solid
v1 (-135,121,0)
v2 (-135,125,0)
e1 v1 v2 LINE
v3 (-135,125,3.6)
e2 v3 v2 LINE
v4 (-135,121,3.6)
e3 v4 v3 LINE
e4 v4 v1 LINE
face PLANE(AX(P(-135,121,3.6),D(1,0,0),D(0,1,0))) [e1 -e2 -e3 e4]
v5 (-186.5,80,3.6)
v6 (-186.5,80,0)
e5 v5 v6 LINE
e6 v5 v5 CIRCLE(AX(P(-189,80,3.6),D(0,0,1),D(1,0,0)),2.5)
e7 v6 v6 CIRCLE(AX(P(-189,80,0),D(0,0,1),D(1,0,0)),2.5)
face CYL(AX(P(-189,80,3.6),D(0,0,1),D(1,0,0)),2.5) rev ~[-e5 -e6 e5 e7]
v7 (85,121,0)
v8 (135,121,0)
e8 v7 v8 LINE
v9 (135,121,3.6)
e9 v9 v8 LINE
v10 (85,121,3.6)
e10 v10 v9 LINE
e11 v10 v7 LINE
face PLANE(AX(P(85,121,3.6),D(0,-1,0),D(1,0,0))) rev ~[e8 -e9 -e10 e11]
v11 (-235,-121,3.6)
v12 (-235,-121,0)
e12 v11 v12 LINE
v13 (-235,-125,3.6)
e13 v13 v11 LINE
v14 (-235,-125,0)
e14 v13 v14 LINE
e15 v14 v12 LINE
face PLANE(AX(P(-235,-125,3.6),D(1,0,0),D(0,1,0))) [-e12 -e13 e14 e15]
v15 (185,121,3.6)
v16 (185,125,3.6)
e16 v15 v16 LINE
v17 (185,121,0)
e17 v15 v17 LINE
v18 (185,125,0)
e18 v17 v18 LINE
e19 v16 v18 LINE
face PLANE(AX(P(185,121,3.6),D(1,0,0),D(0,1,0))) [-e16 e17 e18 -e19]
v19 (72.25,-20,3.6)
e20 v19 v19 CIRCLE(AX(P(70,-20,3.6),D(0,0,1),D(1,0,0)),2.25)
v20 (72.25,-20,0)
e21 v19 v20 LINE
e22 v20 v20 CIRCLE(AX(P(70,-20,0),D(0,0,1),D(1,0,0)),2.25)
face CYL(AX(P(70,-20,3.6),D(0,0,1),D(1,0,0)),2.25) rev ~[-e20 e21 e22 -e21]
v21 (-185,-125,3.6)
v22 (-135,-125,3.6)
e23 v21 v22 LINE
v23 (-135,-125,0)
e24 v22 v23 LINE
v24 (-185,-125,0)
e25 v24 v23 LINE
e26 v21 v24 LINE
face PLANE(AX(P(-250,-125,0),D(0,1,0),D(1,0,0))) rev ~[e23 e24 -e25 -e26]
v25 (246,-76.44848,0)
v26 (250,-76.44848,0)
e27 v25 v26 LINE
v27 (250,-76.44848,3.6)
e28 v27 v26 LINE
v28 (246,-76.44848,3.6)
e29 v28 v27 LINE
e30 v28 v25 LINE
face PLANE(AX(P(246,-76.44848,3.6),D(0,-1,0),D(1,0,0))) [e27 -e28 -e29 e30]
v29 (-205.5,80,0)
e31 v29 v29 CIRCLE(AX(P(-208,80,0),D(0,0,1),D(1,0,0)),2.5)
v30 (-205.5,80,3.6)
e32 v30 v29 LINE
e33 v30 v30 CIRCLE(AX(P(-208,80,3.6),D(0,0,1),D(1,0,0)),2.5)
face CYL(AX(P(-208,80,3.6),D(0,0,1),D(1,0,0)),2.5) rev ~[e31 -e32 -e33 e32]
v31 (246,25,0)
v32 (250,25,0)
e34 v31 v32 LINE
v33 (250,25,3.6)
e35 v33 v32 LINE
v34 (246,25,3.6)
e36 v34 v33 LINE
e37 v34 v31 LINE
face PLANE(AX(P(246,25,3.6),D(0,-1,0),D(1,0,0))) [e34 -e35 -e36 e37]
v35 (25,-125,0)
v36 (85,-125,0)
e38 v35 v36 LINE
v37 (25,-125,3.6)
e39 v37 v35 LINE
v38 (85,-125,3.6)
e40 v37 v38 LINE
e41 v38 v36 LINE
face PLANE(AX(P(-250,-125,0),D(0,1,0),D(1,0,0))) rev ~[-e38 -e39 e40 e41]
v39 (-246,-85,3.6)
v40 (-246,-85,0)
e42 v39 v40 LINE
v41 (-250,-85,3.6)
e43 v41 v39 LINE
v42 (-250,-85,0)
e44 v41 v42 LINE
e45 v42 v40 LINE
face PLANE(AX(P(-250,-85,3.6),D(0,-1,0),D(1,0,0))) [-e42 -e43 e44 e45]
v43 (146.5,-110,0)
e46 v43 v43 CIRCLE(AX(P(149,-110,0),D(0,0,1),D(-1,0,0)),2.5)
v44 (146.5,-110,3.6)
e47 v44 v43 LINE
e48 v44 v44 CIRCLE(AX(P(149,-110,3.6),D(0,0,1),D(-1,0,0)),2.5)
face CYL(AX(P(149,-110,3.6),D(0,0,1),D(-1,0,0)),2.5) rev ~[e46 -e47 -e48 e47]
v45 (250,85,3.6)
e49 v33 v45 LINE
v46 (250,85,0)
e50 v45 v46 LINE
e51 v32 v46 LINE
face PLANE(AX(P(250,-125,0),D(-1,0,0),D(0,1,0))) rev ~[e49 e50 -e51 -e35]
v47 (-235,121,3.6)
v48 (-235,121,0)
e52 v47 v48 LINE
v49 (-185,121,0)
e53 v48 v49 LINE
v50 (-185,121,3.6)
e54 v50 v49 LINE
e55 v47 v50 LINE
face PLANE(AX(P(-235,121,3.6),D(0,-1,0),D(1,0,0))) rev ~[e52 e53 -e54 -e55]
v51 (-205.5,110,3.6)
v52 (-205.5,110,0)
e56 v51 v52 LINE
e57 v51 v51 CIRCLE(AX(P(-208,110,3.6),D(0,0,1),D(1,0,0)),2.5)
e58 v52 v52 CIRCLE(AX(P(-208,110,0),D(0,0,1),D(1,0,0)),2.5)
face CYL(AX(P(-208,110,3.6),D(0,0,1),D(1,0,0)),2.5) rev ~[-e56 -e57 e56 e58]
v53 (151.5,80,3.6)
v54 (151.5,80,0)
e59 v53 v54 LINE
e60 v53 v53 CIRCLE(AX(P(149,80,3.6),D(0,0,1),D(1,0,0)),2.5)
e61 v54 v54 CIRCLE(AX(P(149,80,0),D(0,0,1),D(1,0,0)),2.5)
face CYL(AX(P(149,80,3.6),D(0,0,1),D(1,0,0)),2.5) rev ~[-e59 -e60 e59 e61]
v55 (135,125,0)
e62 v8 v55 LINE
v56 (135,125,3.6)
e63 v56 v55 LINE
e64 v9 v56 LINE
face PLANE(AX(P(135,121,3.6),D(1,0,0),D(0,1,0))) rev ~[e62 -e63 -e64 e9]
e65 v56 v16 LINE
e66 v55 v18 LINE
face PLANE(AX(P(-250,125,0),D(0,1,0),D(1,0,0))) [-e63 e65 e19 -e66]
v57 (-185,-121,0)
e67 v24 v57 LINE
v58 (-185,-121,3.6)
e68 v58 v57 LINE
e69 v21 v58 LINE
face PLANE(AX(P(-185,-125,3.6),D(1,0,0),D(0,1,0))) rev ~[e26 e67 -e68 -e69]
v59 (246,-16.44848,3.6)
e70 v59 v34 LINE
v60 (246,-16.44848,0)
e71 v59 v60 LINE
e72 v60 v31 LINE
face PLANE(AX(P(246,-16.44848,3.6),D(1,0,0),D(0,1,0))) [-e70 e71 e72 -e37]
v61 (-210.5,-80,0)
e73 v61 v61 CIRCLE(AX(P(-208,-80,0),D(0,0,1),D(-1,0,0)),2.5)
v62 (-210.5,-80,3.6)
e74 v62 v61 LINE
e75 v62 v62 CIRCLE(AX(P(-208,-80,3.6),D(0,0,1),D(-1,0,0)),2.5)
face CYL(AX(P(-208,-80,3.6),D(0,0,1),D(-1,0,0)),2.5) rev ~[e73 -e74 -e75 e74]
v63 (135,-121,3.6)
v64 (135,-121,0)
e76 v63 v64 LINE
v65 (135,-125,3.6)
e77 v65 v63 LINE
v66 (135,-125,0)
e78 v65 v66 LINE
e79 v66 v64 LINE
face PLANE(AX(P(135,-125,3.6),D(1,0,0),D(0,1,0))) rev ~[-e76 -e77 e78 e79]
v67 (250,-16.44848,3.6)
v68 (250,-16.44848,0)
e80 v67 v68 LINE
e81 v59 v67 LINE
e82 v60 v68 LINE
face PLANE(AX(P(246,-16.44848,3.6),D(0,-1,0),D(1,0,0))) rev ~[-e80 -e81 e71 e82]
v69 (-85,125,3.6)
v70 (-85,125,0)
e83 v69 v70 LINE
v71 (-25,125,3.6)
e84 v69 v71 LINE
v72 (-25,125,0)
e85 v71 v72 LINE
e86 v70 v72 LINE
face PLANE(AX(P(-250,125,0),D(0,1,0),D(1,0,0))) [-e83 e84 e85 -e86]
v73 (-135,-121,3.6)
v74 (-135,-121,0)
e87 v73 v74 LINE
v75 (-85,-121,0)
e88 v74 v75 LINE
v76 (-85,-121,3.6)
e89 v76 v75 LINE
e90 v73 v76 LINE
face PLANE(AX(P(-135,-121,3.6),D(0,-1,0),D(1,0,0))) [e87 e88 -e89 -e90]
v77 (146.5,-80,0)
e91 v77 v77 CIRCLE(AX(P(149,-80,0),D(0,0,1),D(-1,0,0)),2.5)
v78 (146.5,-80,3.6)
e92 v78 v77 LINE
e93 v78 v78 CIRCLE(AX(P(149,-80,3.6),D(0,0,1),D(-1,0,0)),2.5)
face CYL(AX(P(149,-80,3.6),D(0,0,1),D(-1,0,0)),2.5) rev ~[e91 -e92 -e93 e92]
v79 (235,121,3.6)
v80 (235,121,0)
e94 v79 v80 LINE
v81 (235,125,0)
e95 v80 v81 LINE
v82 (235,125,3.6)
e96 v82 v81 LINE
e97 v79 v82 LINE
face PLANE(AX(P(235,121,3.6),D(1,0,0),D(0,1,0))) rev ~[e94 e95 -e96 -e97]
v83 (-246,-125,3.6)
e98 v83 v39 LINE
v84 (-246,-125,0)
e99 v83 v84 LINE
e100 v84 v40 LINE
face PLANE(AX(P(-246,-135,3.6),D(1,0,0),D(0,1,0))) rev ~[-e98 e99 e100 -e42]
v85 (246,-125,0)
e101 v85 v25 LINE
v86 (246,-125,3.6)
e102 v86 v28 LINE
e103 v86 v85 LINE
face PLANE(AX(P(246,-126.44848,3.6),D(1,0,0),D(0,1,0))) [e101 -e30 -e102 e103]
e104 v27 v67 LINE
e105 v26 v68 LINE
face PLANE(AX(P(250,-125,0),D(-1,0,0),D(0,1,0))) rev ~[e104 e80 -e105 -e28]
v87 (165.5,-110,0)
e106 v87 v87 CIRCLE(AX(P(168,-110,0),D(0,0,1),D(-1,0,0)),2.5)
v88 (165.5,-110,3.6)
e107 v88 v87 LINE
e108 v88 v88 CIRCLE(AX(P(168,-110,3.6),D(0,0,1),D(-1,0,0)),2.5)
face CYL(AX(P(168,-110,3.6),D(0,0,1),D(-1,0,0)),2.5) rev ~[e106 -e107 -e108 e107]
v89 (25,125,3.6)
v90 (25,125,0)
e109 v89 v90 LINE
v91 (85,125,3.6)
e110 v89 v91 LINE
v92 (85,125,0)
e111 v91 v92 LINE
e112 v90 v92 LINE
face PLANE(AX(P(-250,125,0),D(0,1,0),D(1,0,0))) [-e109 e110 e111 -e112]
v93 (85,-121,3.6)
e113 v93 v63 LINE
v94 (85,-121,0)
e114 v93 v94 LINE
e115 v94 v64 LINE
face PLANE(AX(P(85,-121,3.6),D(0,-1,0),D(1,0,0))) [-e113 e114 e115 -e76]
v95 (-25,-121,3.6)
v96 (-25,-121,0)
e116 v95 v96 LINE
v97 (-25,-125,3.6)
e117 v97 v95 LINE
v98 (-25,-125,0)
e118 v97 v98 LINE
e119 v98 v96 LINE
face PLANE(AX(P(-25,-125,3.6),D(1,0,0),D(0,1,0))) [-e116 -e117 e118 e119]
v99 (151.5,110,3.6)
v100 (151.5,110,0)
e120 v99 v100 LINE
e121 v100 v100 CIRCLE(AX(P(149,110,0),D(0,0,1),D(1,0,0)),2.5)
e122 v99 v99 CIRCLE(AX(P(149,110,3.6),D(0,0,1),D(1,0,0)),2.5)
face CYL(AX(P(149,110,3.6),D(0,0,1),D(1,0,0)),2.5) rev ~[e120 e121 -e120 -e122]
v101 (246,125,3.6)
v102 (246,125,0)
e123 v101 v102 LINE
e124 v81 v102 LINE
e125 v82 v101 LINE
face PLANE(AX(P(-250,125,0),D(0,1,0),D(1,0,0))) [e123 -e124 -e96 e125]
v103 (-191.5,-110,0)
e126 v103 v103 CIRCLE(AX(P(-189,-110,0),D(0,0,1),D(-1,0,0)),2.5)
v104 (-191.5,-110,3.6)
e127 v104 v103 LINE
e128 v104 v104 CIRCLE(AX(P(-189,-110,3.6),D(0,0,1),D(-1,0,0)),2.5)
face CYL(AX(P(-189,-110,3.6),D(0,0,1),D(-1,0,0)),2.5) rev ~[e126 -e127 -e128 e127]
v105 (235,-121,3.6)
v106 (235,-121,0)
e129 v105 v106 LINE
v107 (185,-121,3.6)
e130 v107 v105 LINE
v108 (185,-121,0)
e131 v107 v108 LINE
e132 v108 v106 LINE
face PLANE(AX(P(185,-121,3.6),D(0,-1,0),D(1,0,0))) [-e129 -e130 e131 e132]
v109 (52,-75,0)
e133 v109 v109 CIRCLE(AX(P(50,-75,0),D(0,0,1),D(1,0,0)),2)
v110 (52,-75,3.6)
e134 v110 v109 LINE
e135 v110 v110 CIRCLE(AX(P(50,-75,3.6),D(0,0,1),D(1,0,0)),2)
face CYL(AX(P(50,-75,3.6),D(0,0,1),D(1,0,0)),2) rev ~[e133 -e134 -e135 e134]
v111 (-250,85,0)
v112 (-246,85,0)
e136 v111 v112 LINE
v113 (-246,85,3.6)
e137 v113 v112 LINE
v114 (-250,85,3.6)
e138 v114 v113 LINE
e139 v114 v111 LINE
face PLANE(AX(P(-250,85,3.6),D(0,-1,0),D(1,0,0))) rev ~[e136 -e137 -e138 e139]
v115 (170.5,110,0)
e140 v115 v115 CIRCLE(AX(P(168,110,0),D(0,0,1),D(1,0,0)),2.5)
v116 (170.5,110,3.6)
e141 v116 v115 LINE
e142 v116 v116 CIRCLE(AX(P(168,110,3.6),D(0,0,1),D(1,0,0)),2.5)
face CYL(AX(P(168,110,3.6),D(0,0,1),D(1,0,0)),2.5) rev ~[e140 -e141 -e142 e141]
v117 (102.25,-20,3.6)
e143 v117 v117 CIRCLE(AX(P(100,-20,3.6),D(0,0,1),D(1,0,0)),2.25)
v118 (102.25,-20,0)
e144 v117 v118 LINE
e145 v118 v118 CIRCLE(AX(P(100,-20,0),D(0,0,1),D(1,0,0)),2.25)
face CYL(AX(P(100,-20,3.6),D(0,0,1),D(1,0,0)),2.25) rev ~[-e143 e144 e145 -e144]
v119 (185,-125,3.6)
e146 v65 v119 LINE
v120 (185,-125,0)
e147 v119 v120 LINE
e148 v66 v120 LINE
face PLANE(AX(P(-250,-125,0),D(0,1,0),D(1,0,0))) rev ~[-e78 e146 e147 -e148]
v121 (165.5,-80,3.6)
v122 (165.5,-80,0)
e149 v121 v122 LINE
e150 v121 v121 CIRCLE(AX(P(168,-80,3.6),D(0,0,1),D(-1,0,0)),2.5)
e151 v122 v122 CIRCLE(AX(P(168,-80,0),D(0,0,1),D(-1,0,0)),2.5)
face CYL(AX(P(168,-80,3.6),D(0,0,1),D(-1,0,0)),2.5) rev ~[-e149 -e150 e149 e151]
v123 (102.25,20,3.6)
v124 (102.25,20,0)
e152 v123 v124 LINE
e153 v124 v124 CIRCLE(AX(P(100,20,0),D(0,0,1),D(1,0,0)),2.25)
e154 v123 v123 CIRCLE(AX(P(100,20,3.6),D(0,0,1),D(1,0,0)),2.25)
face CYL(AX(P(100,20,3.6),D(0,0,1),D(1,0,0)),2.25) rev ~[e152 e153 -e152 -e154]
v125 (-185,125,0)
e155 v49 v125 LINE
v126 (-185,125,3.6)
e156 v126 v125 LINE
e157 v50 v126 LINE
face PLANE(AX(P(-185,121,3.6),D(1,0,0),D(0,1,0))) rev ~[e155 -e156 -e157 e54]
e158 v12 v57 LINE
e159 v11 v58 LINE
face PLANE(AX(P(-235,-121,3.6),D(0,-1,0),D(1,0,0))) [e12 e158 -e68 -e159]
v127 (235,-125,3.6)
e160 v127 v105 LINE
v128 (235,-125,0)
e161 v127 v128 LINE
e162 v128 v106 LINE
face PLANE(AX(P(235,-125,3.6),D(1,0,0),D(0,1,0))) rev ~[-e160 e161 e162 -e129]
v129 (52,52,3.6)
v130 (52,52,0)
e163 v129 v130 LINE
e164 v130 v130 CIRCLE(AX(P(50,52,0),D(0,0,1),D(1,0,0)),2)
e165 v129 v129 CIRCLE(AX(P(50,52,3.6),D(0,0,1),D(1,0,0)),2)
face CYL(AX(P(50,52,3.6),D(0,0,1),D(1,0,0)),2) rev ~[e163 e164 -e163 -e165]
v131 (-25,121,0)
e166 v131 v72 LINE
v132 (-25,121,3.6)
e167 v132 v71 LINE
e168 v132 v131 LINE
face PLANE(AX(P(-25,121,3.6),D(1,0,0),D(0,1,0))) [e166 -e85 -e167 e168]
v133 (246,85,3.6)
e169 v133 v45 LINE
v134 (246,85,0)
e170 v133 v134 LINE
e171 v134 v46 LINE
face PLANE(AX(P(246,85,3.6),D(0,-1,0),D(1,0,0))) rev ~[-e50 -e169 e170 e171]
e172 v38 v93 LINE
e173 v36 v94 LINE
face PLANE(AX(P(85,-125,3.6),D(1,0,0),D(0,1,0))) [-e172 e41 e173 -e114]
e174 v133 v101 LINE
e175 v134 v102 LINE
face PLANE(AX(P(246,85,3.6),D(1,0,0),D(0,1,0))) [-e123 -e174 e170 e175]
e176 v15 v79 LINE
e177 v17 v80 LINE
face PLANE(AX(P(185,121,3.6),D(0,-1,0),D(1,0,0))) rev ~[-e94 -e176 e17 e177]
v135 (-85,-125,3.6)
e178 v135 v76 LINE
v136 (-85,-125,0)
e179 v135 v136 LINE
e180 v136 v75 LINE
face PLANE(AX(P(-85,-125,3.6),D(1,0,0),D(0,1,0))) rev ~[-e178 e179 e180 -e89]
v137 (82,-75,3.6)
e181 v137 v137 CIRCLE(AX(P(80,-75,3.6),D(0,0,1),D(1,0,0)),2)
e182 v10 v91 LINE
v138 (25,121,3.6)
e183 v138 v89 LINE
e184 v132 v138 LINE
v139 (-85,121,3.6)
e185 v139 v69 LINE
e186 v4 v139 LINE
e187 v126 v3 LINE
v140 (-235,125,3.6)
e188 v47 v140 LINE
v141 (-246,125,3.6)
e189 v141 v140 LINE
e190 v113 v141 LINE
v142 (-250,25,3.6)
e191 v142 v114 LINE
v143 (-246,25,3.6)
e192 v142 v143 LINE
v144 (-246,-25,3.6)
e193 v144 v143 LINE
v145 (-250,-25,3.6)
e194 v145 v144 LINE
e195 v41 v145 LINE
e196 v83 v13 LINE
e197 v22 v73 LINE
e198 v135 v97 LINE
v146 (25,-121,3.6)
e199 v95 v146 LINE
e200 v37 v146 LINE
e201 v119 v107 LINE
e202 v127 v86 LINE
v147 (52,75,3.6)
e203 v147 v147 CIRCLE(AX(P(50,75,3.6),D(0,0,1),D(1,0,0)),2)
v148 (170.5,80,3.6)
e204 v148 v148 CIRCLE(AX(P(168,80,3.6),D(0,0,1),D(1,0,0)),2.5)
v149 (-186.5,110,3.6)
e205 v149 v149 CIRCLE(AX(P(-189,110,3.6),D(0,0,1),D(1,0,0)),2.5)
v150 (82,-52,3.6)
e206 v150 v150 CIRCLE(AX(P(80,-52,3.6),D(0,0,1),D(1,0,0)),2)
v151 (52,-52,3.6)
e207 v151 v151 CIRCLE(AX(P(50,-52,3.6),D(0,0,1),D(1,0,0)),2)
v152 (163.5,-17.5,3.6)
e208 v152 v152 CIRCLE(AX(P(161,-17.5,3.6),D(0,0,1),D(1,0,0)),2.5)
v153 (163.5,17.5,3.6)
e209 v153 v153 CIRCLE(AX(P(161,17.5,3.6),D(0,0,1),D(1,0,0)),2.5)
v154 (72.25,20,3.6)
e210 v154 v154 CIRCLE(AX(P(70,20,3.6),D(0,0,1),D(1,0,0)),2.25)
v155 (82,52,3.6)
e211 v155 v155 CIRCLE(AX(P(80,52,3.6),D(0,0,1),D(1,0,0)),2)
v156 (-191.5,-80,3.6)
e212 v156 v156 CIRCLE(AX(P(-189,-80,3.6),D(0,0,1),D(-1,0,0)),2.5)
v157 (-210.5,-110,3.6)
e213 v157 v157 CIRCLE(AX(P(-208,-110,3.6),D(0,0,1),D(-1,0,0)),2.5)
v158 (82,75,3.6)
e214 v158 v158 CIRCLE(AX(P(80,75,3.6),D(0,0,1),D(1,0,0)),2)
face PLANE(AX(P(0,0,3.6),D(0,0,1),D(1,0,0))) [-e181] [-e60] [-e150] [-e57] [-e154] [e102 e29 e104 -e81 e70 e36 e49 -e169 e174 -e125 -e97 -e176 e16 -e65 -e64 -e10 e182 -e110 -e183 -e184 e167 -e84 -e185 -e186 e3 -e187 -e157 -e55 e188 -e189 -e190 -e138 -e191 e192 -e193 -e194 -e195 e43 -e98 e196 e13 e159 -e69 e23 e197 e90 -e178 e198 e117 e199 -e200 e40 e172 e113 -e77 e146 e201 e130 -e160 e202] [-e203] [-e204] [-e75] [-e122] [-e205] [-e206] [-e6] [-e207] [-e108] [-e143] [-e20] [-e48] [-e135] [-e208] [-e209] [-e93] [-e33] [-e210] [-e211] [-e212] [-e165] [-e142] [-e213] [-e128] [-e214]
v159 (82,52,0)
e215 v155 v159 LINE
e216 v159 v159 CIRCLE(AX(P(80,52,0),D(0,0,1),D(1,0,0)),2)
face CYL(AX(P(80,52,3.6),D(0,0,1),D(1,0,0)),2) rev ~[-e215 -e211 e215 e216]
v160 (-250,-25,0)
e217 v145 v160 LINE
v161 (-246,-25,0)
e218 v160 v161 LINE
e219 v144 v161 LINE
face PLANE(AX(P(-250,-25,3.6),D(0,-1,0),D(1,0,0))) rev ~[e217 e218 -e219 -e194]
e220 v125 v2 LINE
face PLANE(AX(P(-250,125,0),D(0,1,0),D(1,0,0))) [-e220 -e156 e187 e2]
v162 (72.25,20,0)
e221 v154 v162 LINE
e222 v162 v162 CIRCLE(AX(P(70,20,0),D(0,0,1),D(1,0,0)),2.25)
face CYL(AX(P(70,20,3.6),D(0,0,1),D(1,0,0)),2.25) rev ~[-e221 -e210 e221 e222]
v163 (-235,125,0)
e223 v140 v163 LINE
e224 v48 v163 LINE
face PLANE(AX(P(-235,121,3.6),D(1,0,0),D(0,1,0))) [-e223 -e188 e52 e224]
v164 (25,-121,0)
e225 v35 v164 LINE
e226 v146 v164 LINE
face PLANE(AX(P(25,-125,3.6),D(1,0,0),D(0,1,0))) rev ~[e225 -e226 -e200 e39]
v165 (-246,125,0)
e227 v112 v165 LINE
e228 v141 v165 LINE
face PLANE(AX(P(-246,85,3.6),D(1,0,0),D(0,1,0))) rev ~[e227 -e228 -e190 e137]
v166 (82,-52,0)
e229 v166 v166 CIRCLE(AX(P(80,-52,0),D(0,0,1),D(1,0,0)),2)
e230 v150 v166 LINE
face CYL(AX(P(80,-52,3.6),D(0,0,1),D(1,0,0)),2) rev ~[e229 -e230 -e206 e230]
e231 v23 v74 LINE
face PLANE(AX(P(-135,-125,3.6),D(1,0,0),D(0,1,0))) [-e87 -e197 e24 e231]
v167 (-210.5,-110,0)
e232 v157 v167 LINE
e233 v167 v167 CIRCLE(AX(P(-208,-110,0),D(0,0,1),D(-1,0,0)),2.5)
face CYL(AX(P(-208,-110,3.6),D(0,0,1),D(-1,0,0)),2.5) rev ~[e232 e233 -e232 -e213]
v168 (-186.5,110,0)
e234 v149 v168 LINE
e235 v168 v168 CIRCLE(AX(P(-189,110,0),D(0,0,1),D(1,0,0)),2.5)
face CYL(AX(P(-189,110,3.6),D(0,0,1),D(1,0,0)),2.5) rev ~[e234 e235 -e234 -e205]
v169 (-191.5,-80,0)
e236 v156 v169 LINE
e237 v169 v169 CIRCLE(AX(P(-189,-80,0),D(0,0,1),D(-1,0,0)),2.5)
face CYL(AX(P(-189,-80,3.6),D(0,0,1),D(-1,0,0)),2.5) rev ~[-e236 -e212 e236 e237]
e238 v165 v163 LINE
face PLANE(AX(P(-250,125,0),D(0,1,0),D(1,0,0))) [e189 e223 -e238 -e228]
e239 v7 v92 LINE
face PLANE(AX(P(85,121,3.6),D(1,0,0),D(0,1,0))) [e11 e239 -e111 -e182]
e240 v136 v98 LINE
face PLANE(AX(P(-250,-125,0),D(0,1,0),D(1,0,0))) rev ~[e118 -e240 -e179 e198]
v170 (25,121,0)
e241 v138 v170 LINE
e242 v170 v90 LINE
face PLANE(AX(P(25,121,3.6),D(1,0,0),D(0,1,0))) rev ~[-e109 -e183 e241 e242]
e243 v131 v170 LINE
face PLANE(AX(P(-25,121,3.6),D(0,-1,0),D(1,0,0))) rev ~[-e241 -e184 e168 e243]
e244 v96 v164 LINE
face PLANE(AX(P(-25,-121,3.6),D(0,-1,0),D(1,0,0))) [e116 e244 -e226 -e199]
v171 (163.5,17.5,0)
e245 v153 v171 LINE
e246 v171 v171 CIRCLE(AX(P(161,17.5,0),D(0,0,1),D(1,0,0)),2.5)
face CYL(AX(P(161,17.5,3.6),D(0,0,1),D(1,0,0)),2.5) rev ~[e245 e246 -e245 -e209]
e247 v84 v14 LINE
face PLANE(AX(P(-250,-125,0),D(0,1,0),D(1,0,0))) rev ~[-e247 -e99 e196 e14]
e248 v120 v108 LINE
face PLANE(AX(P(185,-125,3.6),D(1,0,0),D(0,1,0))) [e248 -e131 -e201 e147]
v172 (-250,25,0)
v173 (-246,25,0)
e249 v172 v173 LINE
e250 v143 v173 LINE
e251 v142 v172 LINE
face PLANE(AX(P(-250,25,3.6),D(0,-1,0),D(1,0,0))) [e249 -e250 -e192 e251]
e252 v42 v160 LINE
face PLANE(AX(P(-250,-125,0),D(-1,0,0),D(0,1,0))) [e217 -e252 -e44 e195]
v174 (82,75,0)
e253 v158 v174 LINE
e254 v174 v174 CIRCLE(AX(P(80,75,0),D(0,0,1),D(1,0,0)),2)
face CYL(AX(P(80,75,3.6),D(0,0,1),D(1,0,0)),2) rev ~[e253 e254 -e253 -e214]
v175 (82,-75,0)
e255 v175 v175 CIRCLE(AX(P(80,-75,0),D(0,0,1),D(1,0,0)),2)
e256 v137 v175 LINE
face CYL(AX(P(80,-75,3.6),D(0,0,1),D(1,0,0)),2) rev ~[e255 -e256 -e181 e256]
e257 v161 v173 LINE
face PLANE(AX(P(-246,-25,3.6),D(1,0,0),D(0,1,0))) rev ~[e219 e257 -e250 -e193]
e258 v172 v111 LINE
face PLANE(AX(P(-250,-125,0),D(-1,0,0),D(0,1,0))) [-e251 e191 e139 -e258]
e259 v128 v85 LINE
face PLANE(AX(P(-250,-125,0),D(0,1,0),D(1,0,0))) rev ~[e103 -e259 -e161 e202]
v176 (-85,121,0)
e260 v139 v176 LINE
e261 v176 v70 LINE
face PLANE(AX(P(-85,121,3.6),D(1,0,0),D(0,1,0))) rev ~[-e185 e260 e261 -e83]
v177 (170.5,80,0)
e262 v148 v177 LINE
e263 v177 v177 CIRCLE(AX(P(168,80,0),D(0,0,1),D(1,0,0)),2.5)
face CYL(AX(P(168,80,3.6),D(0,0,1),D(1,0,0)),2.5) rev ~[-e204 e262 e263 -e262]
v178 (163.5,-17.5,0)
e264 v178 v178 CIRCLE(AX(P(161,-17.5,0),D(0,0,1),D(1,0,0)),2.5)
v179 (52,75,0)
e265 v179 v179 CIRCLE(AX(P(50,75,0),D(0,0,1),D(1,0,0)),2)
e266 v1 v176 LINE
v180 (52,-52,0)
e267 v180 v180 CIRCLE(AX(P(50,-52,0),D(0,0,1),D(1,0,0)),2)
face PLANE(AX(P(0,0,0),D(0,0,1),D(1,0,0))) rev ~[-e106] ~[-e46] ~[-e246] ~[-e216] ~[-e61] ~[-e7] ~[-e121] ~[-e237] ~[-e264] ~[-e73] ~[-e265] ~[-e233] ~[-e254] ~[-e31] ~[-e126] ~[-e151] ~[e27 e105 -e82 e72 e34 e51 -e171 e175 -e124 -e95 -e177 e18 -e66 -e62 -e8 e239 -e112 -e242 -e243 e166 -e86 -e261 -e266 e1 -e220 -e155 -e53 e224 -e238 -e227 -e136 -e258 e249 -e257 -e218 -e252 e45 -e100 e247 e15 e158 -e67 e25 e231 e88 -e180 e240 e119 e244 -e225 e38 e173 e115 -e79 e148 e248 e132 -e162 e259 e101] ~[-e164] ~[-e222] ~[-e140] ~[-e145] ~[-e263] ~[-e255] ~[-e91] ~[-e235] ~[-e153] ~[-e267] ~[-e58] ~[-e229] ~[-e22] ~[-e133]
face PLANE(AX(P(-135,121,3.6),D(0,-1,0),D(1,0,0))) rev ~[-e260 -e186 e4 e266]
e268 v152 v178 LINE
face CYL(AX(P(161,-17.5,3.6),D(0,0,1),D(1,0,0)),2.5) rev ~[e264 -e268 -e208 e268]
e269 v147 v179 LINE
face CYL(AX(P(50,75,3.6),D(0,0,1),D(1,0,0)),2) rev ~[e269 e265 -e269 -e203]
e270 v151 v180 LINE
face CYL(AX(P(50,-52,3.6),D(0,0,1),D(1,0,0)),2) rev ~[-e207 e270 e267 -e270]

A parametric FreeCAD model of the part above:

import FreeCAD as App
import Part
import Sketcher


def add_polygon(sketch, points):
    """Adds a closed chain of lines whose ends are joined by coincident constraints."""
    first, n = sketch.GeometryCount, len(points)
    for a, b in zip(points, points[1:] + points[:1]):
        sketch.addGeometry(Part.LineSegment(App.Vector(*a, 0), App.Vector(*b, 0)), False)
    for i in range(n):
        sketch.addConstraint(Sketcher.Constraint("Coincident", first + i, 2, first + (i + 1) % n, 1))

doc = App.newDocument("Part")
params = doc.addObject("Spreadsheet::Sheet", "Params")
for row, (alias, value) in enumerate([
    ("sketch1_width", "500 mm"),
    ("sketch1_height", "250 mm"),
    ("pad1_length", "3.6 mm"),
    ("sketch2_width", "50 mm"),
    ("sketch2_height", "4 mm"),
    ("pocket1_length", "3.6 mm"),
    ("sketch3_width", "4 mm"),
    ("sketch3_height", "50 mm"),
    ("pocket2_length", "3.6 mm"),
    ("sketch4_diameter", "4 mm"),
    ("sketch5_diameter", "4 mm"),
    ("pocket4_length", "10 mm"),
    ("sketch6_diameter", "5 mm"),
    ("pocket5_length", "10 mm"),
    ("sketch7_diameter", "4.5 mm"),
    ("sketch8_diameter", "5 mm"),
], start=1):
    params.set(f"A{row}", alias)
    params.set(f"B{row}", "=" + value)
    params.setAlias(f"B{row}", alias)

body = doc.addObject("PartDesign::Body", "Body")

# Sketch on XY plane
sketch1 = doc.addObject("Sketcher::SketchObject", "Sketch")
body.addObject(sketch1)
sketch1.AttachmentSupport = (doc.XY_Plane, [""])
sketch1.MapMode = "FlatFace"
add_polygon(sketch1, [(-250, 125), (-250, -125), (250, -125), (250, 125)])  # lines 0-3
sketch1.addConstraint(Sketcher.Constraint("Vertical", 0))
sketch1.addConstraint(Sketcher.Constraint("Horizontal", 1))
sketch1.addConstraint(Sketcher.Constraint("Vertical", 2))
sketch1.addConstraint(Sketcher.Constraint("Horizontal", 3))
sketch1.addConstraint(Sketcher.Constraint("Symmetric", 0, 2, 2, 2, -1, 1))
sketch1.addConstraint(Sketcher.Constraint("DistanceX", 1, 1, 1, 2, 500.0))
sketch1.addConstraint(Sketcher.Constraint("DistanceY", 0, 2, 0, 1, 250.0))
sketch1.setExpression("Constraints[9]", "Params.sketch1_width")
sketch1.setExpression("Constraints[10]", "Params.sketch1_height")
pad1 = doc.addObject("PartDesign::Pad", "Pad")
body.addObject(pad1)
pad1.Profile = sketch1
pad1.setExpression("Length", "Params.pad1_length")

# Sketch on XY plane
sketch2 = doc.addObject("Sketcher::SketchObject", "Sketch001")
body.addObject(sketch2)
sketch2.AttachmentSupport = (doc.XY_Plane, [""])
sketch2.MapMode = "FlatFace"
sketch2.AttachmentOffset = App.Placement(App.Vector(0, 0, 3.6), App.Rotation())
add_polygon(sketch2, [(-25, 125), (-25, 121), (25, 121), (25, 125)])  # lines 0-3
add_polygon(sketch2, [(-135, 125), (-135, 121), (-85, 121), (-85, 125)])  # lines 4-7
add_polygon(sketch2, [(-235, 125), (-235, 121), (-185, 121), (-185, 125)])  # lines 8-11
add_polygon(sketch2, [(85, 125), (85, 121), (135, 121), (135, 125)])  # lines 12-15
add_polygon(sketch2, [(185, 125), (185, 121), (235, 121), (235, 125)])  # lines 16-19
add_polygon(sketch2, [(185, -121), (185, -125), (235, -125), (235, -121)])  # lines 20-23
add_polygon(sketch2, [(85, -121), (85, -125), (135, -125), (135, -121)])  # lines 24-27
add_polygon(sketch2, [(-235, -121), (-235, -125), (-185, -125), (-185, -121)])  # lines 28-31
add_polygon(sketch2, [(-135, -121), (-135, -125), (-85, -125), (-85, -121)])  # lines 32-35
add_polygon(sketch2, [(-25, -121), (-25, -125), (25, -125), (25, -121)])  # lines 36-39
sketch2.addConstraint(Sketcher.Constraint("Vertical", 0))
sketch2.addConstraint(Sketcher.Constraint("Horizontal", 1))
sketch2.addConstraint(Sketcher.Constraint("Vertical", 2))
sketch2.addConstraint(Sketcher.Constraint("Horizontal", 3))
sketch2.addConstraint(Sketcher.Constraint("Vertical", 4))
sketch2.addConstraint(Sketcher.Constraint("Horizontal", 5))
sketch2.addConstraint(Sketcher.Constraint("Vertical", 6))
sketch2.addConstraint(Sketcher.Constraint("Horizontal", 7))
sketch2.addConstraint(Sketcher.Constraint("Vertical", 8))
sketch2.addConstraint(Sketcher.Constraint("Horizontal", 9))
sketch2.addConstraint(Sketcher.Constraint("Vertical", 10))
sketch2.addConstraint(Sketcher.Constraint("Horizontal", 11))
sketch2.addConstraint(Sketcher.Constraint("Vertical", 12))
sketch2.addConstraint(Sketcher.Constraint("Horizontal", 13))
sketch2.addConstraint(Sketcher.Constraint("Vertical", 14))
sketch2.addConstraint(Sketcher.Constraint("Horizontal", 15))
sketch2.addConstraint(Sketcher.Constraint("Vertical", 16))
sketch2.addConstraint(Sketcher.Constraint("Horizontal", 17))
sketch2.addConstraint(Sketcher.Constraint("Vertical", 18))
sketch2.addConstraint(Sketcher.Constraint("Horizontal", 19))
sketch2.addConstraint(Sketcher.Constraint("Vertical", 20))
sketch2.addConstraint(Sketcher.Constraint("Horizontal", 21))
sketch2.addConstraint(Sketcher.Constraint("Vertical", 22))
sketch2.addConstraint(Sketcher.Constraint("Horizontal", 23))
sketch2.addConstraint(Sketcher.Constraint("Vertical", 24))
sketch2.addConstraint(Sketcher.Constraint("Horizontal", 25))
sketch2.addConstraint(Sketcher.Constraint("Vertical", 26))
sketch2.addConstraint(Sketcher.Constraint("Horizontal", 27))
sketch2.addConstraint(Sketcher.Constraint("Vertical", 28))
sketch2.addConstraint(Sketcher.Constraint("Horizontal", 29))
sketch2.addConstraint(Sketcher.Constraint("Vertical", 30))
sketch2.addConstraint(Sketcher.Constraint("Horizontal", 31))
sketch2.addConstraint(Sketcher.Constraint("Vertical", 32))
sketch2.addConstraint(Sketcher.Constraint("Horizontal", 33))
sketch2.addConstraint(Sketcher.Constraint("Vertical", 34))
sketch2.addConstraint(Sketcher.Constraint("Horizontal", 35))
sketch2.addConstraint(Sketcher.Constraint("Vertical", 36))
sketch2.addConstraint(Sketcher.Constraint("Horizontal", 37))
sketch2.addConstraint(Sketcher.Constraint("Vertical", 38))
sketch2.addConstraint(Sketcher.Constraint("Horizontal", 39))
sketch2.addConstraint(Sketcher.Constraint("Symmetric", 10, 2, 20, 2, -1, 1))
sketch2.addConstraint(Sketcher.Constraint("Symmetric", 8, 2, 22, 2, -1, 1))
sketch2.addConstraint(Sketcher.Constraint("Symmetric", 6, 2, 24, 2, -1, 1))
sketch2.addConstraint(Sketcher.Constraint("Symmetric", 4, 2, 26, 2, -1, 1))
sketch2.addConstraint(Sketcher.Constraint("Symmetric", 18, 2, 28, 2, -1, 1))
sketch2.addConstraint(Sketcher.Constraint("Symmetric", 16, 2, 30, 2, -1, 1))
sketch2.addConstraint(Sketcher.Constraint("Symmetric", 14, 2, 32, 2, -1, 1))
sketch2.addConstraint(Sketcher.Constraint("Symmetric", 12, 2, 34, 2, -1, 1))
sketch2.addConstraint(Sketcher.Constraint("Symmetric", 2, 2, 36, 2, -1, 1))
sketch2.addConstraint(Sketcher.Constraint("Symmetric", 0, 2, 38, 2, -1, 1))
sketch2.addConstraint(Sketcher.Constraint("Symmetric", 5, 2, 12, 2, -2))
sketch2.addConstraint(Sketcher.Constraint("Symmetric", 7, 2, 14, 2, -2))
sketch2.addConstraint(Sketcher.Constraint("Symmetric", 9, 2, 16, 2, -2))
sketch2.addConstraint(Sketcher.Constraint("Symmetric", 11, 2, 18, 2, -2))
sketch2.addConstraint(Sketcher.Constraint("Horizontal", 1, 2, 4, 2))
sketch2.addConstraint(Sketcher.Constraint("Horizontal", 3, 2, 6, 2))
sketch2.addConstraint(Sketcher.Constraint("Horizontal", 5, 2, 8, 2))
sketch2.addConstraint(Sketcher.Constraint("Horizontal", 7, 2, 10, 2))
sketch2.addConstraint(Sketcher.Constraint("Vertical", 3, 2, 36, 2))
sketch2.addConstraint(Sketcher.Constraint("Equal", 3, 5))
sketch2.addConstraint(Sketcher.Constraint("Equal", 7, 9))
sketch2.addConstraint(Sketcher.Constraint("DistanceX", 1, 1, 1, 2, 50.0))
sketch2.addConstraint(Sketcher.Constraint("DistanceY", 0, 2, 0, 1, 4.0))
sketch2.addConstraint(Sketcher.Constraint("DistanceY", -1, 1, 0, 2, 121.0))
sketch2.addConstraint(Sketcher.Constraint("DistanceX", 4, 2, -1, 1, 135.0))
sketch2.addConstraint(Sketcher.Constraint("DistanceX", 8, 2, -1, 1, 235.0))
sketch2.setExpression("Constraints[101]", "Params.sketch2_width")
sketch2.setExpression("Constraints[102]", "Params.sketch2_height")
pocket1 = doc.addObject("PartDesign::Pocket", "Pocket")
body.addObject(pocket1)
pocket1.Profile = sketch2
pocket1.setExpression("Length", "Params.pocket1_length")

# Sketch on XY plane
sketch3 = doc.addObject("Sketcher::SketchObject", "Sketch002")
body.addObject(sketch3)
sketch3.AttachmentSupport = (doc.XY_Plane, [""])
sketch3.MapMode = "FlatFace"
sketch3.AttachmentOffset = App.Placement(App.Vector(0, 0, 3.6), App.Rotation())
add_polygon(sketch3, [(-250, 25), (-250, -25), (-246, -25), (-246, 25)])  # lines 0-3
add_polygon(sketch3, [(-250, 135), (-250, 85), (-246, 85), (-246, 135)])  # lines 4-7
add_polygon(sketch3, [(-250, -85), (-250, -135), (-246, -135), (-246, -85)])  # lines 8-11
add_polygon(sketch3, [(246, 25), (246, -16.44848), (250, -16.44848), (250, 25)])  # lines 12-15
add_polygon(sketch3, [(246, -76.44848), (246, -126.44848), (250, -126.44848), (250, -76.44848)])  # lines 16-19
add_polygon(sketch3, [(246, 135), (246, 85), (250, 85), (250, 135)])  # lines 20-23
sketch3.addConstraint(Sketcher.Constraint("Vertical", 0))
sketch3.addConstraint(Sketcher.Constraint("Horizontal", 1))
sketch3.addConstraint(Sketcher.Constraint("Vertical", 2))
sketch3.addConstraint(Sketcher.Constraint("Horizontal", 3))
sketch3.addConstraint(Sketcher.Constraint("Vertical", 4))
sketch3.addConstraint(Sketcher.Constraint("Horizontal", 5))
sketch3.addConstraint(Sketcher.Constraint("Vertical", 6))
sketch3.addConstraint(Sketcher.Constraint("Horizontal", 7))
sketch3.addConstraint(Sketcher.Constraint("Vertical", 8))
sketch3.addConstraint(Sketcher.Constraint("Horizontal", 9))
sketch3.addConstraint(Sketcher.Constraint("Vertical", 10))
sketch3.addConstraint(Sketcher.Constraint("Horizontal", 11))
sketch3.addConstraint(Sketcher.Constraint("Vertical", 12))
sketch3.addConstraint(Sketcher.Constraint("Horizontal", 13))
sketch3.addConstraint(Sketcher.Constraint("Vertical", 14))
sketch3.addConstraint(Sketcher.Constraint("Horizontal", 15))
sketch3.addConstraint(Sketcher.Constraint("Vertical", 16))
sketch3.addConstraint(Sketcher.Constraint("Horizontal", 17))
sketch3.addConstraint(Sketcher.Constraint("Vertical", 18))
sketch3.addConstraint(Sketcher.Constraint("Horizontal", 19))
sketch3.addConstraint(Sketcher.Constraint("Vertical", 20))
sketch3.addConstraint(Sketcher.Constraint("Horizontal", 21))
sketch3.addConstraint(Sketcher.Constraint("Vertical", 22))
sketch3.addConstraint(Sketcher.Constraint("Horizontal", 23))
sketch3.addConstraint(Sketcher.Constraint("Symmetric", 0, 2, 14, 2, -1, 1))
sketch3.addConstraint(Sketcher.Constraint("Symmetric", 10, 2, 20, 2, -1, 1))
sketch3.addConstraint(Sketcher.Constraint("Symmetric", 8, 2, 22, 2, -1, 1))
sketch3.addConstraint(Sketcher.Constraint("Symmetric", 2, 2, 15, 2, -2))
sketch3.addConstraint(Sketcher.Constraint("Symmetric", 5, 2, 20, 2, -2))
sketch3.addConstraint(Sketcher.Constraint("Symmetric", 7, 2, 22, 2, -2))
sketch3.addConstraint(Sketcher.Constraint("Vertical", 3, 2, 4, 2))
sketch3.addConstraint(Sketcher.Constraint("Vertical", 2, 2, 5, 2))
sketch3.addConstraint(Sketcher.Constraint("Vertical", 15, 2, 16, 2))
sketch3.addConstraint(Sketcher.Constraint("Vertical", 14, 2, 17, 2))
sketch3.addConstraint(Sketcher.Constraint("Equal", 2, 4))
sketch3.addConstraint(Sketcher.Constraint("Equal", 10, 16))
sketch3.addConstraint(Sketcher.Constraint("DistanceX", 1, 1, 1, 2, 4.0))
sketch3.addConstraint(Sketcher.Constraint("DistanceY", 0, 2, 0, 1, 50.0))
sketch3.addConstraint(Sketcher.Constraint("DistanceX", 0, 2, -1, 1, 250.0))
sketch3.addConstraint(Sketcher.Constraint("DistanceY", -1, 1, 4, 2, 85.0))
sketch3.addConstraint(Sketcher.Constraint("DistanceY", 16, 2, 12, 2, 110.0))
sketch3.addConstraint(Sketcher.Constraint("DistanceY", 12, 2, 12, 1, 41.44848))
sketch3.setExpression("Constraints[60]", "Params.sketch3_width")
sketch3.setExpression("Constraints[61]", "Params.sketch3_height")
pocket2 = doc.addObject("PartDesign::Pocket", "Pocket001")
body.addObject(pocket2)
pocket2.Profile = sketch3
pocket2.setExpression("Length", "Params.pocket2_length")

# Sketch on XY plane
sketch4 = doc.addObject("Sketcher::SketchObject", "Sketch003")
body.addObject(sketch4)
sketch4.AttachmentSupport = (doc.XY_Plane, [""])
sketch4.MapMode = "FlatFace"
sketch4.AttachmentOffset = App.Placement(App.Vector(0, 0, 3.6), App.Rotation())
sketch4.addGeometry(Part.Circle(App.Vector(80, 75, 0), App.Vector(0, 0, 1), 2), False)
sketch4.addGeometry(Part.Circle(App.Vector(80, -52, 0), App.Vector(0, 0, 1), 2), False)
sketch4.addGeometry(Part.Circle(App.Vector(80, 52, 0), App.Vector(0, 0, 1), 2), False)
sketch4.addGeometry(Part.Circle(App.Vector(80, -75, 0), App.Vector(0, 0, 1), 2), False)
sketch4.addConstraint(Sketcher.Constraint("Equal", 0, 1))
sketch4.addConstraint(Sketcher.Constraint("Equal", 1, 2))
sketch4.addConstraint(Sketcher.Constraint("Equal", 2, 3))
sketch4.addConstraint(Sketcher.Constraint("Symmetric", 1, 3, 2, 3, -1))
sketch4.addConstraint(Sketcher.Constraint("Symmetric", 0, 3, 3, 3, -1))
sketch4.addConstraint(Sketcher.Constraint("Vertical", 0, 3, 1, 3))
sketch4.addConstraint(Sketcher.Constraint("Diameter", 0, 4.0))
sketch4.addConstraint(Sketcher.Constraint("DistanceX", -1, 1, 0, 3, 80.0))
sketch4.addConstraint(Sketcher.Constraint("DistanceY", -1, 1, 0, 3, 75.0))
sketch4.addConstraint(Sketcher.Constraint("DistanceY", 1, 3, -1, 1, 52.0))
sketch4.setExpression("Constraints[6]", "Params.sketch4_diameter")
pocket3 = doc.addObject("PartDesign::Pocket", "Pocket002")
body.addObject(pocket3)
pocket3.Profile = sketch4
pocket3.Type = "ThroughAll"

# Sketch on XY plane
sketch5 = doc.addObject("Sketcher::SketchObject", "Sketch004")
body.addObject(sketch5)
sketch5.AttachmentSupport = (doc.XY_Plane, [""])
sketch5.MapMode = "FlatFace"
sketch5.AttachmentOffset = App.Placement(App.Vector(0, 0, 3.6), App.Rotation())
sketch5.addGeometry(Part.Circle(App.Vector(50, 75, 0), App.Vector(0, 0, 1), 2), False)
sketch5.addGeometry(Part.Circle(App.Vector(50, 52, 0), App.Vector(0, 0, 1), 2), False)
sketch5.addGeometry(Part.Circle(App.Vector(50, -52, 0), App.Vector(0, 0, 1), 2), False)
sketch5.addGeometry(Part.Circle(App.Vector(50, -75, 0), App.Vector(0, 0, 1), 2), False)
sketch5.addConstraint(Sketcher.Constraint("Equal", 0, 1))
sketch5.addConstraint(Sketcher.Constraint("Equal", 1, 2))
sketch5.addConstraint(Sketcher.Constraint("Equal", 2, 3))
sketch5.addConstraint(Sketcher.Constraint("Symmetric", 1, 3, 2, 3, -1))
sketch5.addConstraint(Sketcher.Constraint("Symmetric", 0, 3, 3, 3, -1))
sketch5.addConstraint(Sketcher.Constraint("Vertical", 0, 3, 1, 3))
sketch5.addConstraint(Sketcher.Constraint("Diameter", 0, 4.0))
sketch5.addConstraint(Sketcher.Constraint("DistanceX", -1, 1, 0, 3, 50.0))
sketch5.addConstraint(Sketcher.Constraint("DistanceY", -1, 1, 0, 3, 75.0))
sketch5.addConstraint(Sketcher.Constraint("DistanceY", -1, 1, 1, 3, 52.0))
sketch5.setExpression("Constraints[6]", "Params.sketch5_diameter")
pocket4 = doc.addObject("PartDesign::Pocket", "Pocket003")
body.addObject(pocket4)
pocket4.Profile = sketch5
pocket4.setExpression("Length", "Params.pocket4_length")

# Sketch on XY plane
sketch6 = doc.addObject("Sketcher::SketchObject", "Sketch005")
body.addObject(sketch6)
sketch6.AttachmentSupport = (doc.XY_Plane, [""])
sketch6.MapMode = "FlatFace"
sketch6.AttachmentOffset = App.Placement(App.Vector(0, 0, 3.6), App.Rotation())
sketch6.addGeometry(Part.Circle(App.Vector(161, -17.5, 0), App.Vector(0, 0, 1), 2.5), False)
sketch6.addGeometry(Part.Circle(App.Vector(161, 17.5, 0), App.Vector(0, 0, 1), 2.5), False)
sketch6.addConstraint(Sketcher.Constraint("Equal", 0, 1))
sketch6.addConstraint(Sketcher.Constraint("Symmetric", 0, 3, 1, 3, -1))
sketch6.addConstraint(Sketcher.Constraint("Diameter", 0, 5.0))
sketch6.addConstraint(Sketcher.Constraint("DistanceX", -1, 1, 0, 3, 161.0))
sketch6.addConstraint(Sketcher.Constraint("DistanceY", 0, 3, 1, 3, 35.0))
sketch6.setExpression("Constraints[2]", "Params.sketch6_diameter")
pocket5 = doc.addObject("PartDesign::Pocket", "Pocket004")
body.addObject(pocket5)
pocket5.Profile = sketch6
pocket5.setExpression("Length", "Params.pocket5_length")

# Sketch on XY plane
sketch7 = doc.addObject("Sketcher::SketchObject", "Sketch006")
body.addObject(sketch7)
sketch7.AttachmentSupport = (doc.XY_Plane, [""])
sketch7.MapMode = "FlatFace"
sketch7.AttachmentOffset = App.Placement(App.Vector(0, 0, 3.6), App.Rotation())
sketch7.addGeometry(Part.Circle(App.Vector(70, 20, 0), App.Vector(0, 0, 1), 2.25), False)
sketch7.addGeometry(Part.Circle(App.Vector(100, 20, 0), App.Vector(0, 0, 1), 2.25), False)
sketch7.addGeometry(Part.Circle(App.Vector(70, -20, 0), App.Vector(0, 0, 1), 2.25), False)
sketch7.addGeometry(Part.Circle(App.Vector(100, -20, 0), App.Vector(0, 0, 1), 2.25), False)
sketch7.addConstraint(Sketcher.Constraint("Equal", 0, 1))
sketch7.addConstraint(Sketcher.Constraint("Equal", 1, 2))
sketch7.addConstraint(Sketcher.Constraint("Equal", 2, 3))
sketch7.addConstraint(Sketcher.Constraint("Symmetric", 0, 3, 2, 3, -1))
sketch7.addConstraint(Sketcher.Constraint("Symmetric", 1, 3, 3, 3, -1))
sketch7.addConstraint(Sketcher.Constraint("Horizontal", 0, 3, 1, 3))
sketch7.addConstraint(Sketcher.Constraint("Diameter", 0, 4.5))
sketch7.addConstraint(Sketcher.Constraint("DistanceX", -1, 1, 0, 3, 70.0))
sketch7.addConstraint(Sketcher.Constraint("DistanceY", -1, 1, 0, 3, 20.0))
sketch7.addConstraint(Sketcher.Constraint("DistanceX", -1, 1, 1, 3, 100.0))
sketch7.setExpression("Constraints[6]", "Params.sketch7_diameter")
pocket6 = doc.addObject("PartDesign::Pocket", "Pocket005")
body.addObject(pocket6)
pocket6.Profile = sketch7
pocket6.Type = "ThroughAll"

# Sketch on XY plane
sketch8 = doc.addObject("Sketcher::SketchObject", "Sketch007")
body.addObject(sketch8)
sketch8.AttachmentSupport = (doc.XY_Plane, [""])
sketch8.MapMode = "FlatFace"
sketch8.AttachmentOffset = App.Placement(App.Vector(0, 0, 3.6), App.Rotation())
sketch8.addGeometry(Part.Circle(App.Vector(-208, 110, 0), App.Vector(0, 0, 1), 2.5), False)
sketch8.addGeometry(Part.Circle(App.Vector(-189, 110, 0), App.Vector(0, 0, 1), 2.5), False)
sketch8.addGeometry(Part.Circle(App.Vector(-208, 80, 0), App.Vector(0, 0, 1), 2.5), False)
sketch8.addGeometry(Part.Circle(App.Vector(-189, 80, 0), App.Vector(0, 0, 1), 2.5), False)
sketch8.addGeometry(Part.Circle(App.Vector(-189, -110, 0), App.Vector(0, 0, 1), 2.5), False)
sketch8.addGeometry(Part.Circle(App.Vector(-189, -80, 0), App.Vector(0, 0, 1), 2.5), False)
sketch8.addGeometry(Part.Circle(App.Vector(-208, -80, 0), App.Vector(0, 0, 1), 2.5), False)
sketch8.addGeometry(Part.Circle(App.Vector(-208, -110, 0), App.Vector(0, 0, 1), 2.5), False)
sketch8.addGeometry(Part.Circle(App.Vector(149, 110, 0), App.Vector(0, 0, 1), 2.5), False)
sketch8.addGeometry(Part.Circle(App.Vector(168, 110, 0), App.Vector(0, 0, 1), 2.5), False)
sketch8.addGeometry(Part.Circle(App.Vector(149, 80, 0), App.Vector(0, 0, 1), 2.5), False)
sketch8.addGeometry(Part.Circle(App.Vector(168, 80, 0), App.Vector(0, 0, 1), 2.5), False)
sketch8.addGeometry(Part.Circle(App.Vector(168, -110, 0), App.Vector(0, 0, 1), 2.5), False)
sketch8.addGeometry(Part.Circle(App.Vector(168, -80, 0), App.Vector(0, 0, 1), 2.5), False)
sketch8.addGeometry(Part.Circle(App.Vector(149, -80, 0), App.Vector(0, 0, 1), 2.5), False)
sketch8.addGeometry(Part.Circle(App.Vector(149, -110, 0), App.Vector(0, 0, 1), 2.5), False)
sketch8.addConstraint(Sketcher.Constraint("Equal", 0, 1))
sketch8.addConstraint(Sketcher.Constraint("Equal", 1, 2))
sketch8.addConstraint(Sketcher.Constraint("Equal", 2, 3))
sketch8.addConstraint(Sketcher.Constraint("Equal", 3, 4))
sketch8.addConstraint(Sketcher.Constraint("Equal", 4, 5))
sketch8.addConstraint(Sketcher.Constraint("Equal", 5, 6))
sketch8.addConstraint(Sketcher.Constraint("Equal", 6, 7))
sketch8.addConstraint(Sketcher.Constraint("Equal", 7, 8))
sketch8.addConstraint(Sketcher.Constraint("Equal", 8, 9))
sketch8.addConstraint(Sketcher.Constraint("Equal", 9, 10))
sketch8.addConstraint(Sketcher.Constraint("Equal", 10, 11))
sketch8.addConstraint(Sketcher.Constraint("Equal", 11, 12))
sketch8.addConstraint(Sketcher.Constraint("Equal", 12, 13))
sketch8.addConstraint(Sketcher.Constraint("Equal", 13, 14))
sketch8.addConstraint(Sketcher.Constraint("Equal", 14, 15))
sketch8.addConstraint(Sketcher.Constraint("Symmetric", 1, 3, 4, 3, -1))
sketch8.addConstraint(Sketcher.Constraint("Symmetric", 3, 3, 5, 3, -1))
sketch8.addConstraint(Sketcher.Constraint("Symmetric", 2, 3, 6, 3, -1))
sketch8.addConstraint(Sketcher.Constraint("Symmetric", 0, 3, 7, 3, -1))
sketch8.addConstraint(Sketcher.Constraint("Symmetric", 9, 3, 12, 3, -1))
sketch8.addConstraint(Sketcher.Constraint("Symmetric", 11, 3, 13, 3, -1))
sketch8.addConstraint(Sketcher.Constraint("Symmetric", 10, 3, 14, 3, -1))
sketch8.addConstraint(Sketcher.Constraint("Symmetric", 8, 3, 15, 3, -1))
sketch8.addConstraint(Sketcher.Constraint("Horizontal", 0, 3, 1, 3))
sketch8.addConstraint(Sketcher.Constraint("Horizontal", 2, 3, 3, 3))
sketch8.addConstraint(Sketcher.Constraint("Horizontal", 1, 3, 8, 3))
sketch8.addConstraint(Sketcher.Constraint("Horizontal", 8, 3, 9, 3))
sketch8.addConstraint(Sketcher.Constraint("Horizontal", 3, 3, 10, 3))
sketch8.addConstraint(Sketcher.Constraint("Horizontal", 10, 3, 11, 3))
sketch8.addConstraint(Sketcher.Constraint("Vertical", 0, 3, 2, 3))
sketch8.addConstraint(Sketcher.Constraint("Vertical", 1, 3, 3, 3))
sketch8.addConstraint(Sketcher.Constraint("Vertical", 8, 3, 10, 3))
sketch8.addConstraint(Sketcher.Constraint("Vertical", 9, 3, 11, 3))
sketch8.addConstraint(Sketcher.Constraint("Diameter", 0, 5.0))
sketch8.addConstraint(Sketcher.Constraint("DistanceX", 0, 3, -1, 1, 208.0))
sketch8.addConstraint(Sketcher.Constraint("DistanceY", -1, 1, 0, 3, 110.0))
sketch8.addConstraint(Sketcher.Constraint("DistanceX", 1, 3, -1, 1, 189.0))
sketch8.addConstraint(Sketcher.Constraint("DistanceY", -1, 1, 2, 3, 80.0))
sketch8.addConstraint(Sketcher.Constraint("DistanceX", -1, 1, 8, 3, 149.0))
sketch8.addConstraint(Sketcher.Constraint("DistanceX", -1, 1, 9, 3, 168.0))
sketch8.setExpression("Constraints[33]", "Params.sketch8_diameter")
pocket7 = doc.addObject("PartDesign::Pocket", "Pocket006")
body.addObject(pocket7)
pocket7.Profile = sketch8
pocket7.Type = "ThroughAll"

doc.recompute()
